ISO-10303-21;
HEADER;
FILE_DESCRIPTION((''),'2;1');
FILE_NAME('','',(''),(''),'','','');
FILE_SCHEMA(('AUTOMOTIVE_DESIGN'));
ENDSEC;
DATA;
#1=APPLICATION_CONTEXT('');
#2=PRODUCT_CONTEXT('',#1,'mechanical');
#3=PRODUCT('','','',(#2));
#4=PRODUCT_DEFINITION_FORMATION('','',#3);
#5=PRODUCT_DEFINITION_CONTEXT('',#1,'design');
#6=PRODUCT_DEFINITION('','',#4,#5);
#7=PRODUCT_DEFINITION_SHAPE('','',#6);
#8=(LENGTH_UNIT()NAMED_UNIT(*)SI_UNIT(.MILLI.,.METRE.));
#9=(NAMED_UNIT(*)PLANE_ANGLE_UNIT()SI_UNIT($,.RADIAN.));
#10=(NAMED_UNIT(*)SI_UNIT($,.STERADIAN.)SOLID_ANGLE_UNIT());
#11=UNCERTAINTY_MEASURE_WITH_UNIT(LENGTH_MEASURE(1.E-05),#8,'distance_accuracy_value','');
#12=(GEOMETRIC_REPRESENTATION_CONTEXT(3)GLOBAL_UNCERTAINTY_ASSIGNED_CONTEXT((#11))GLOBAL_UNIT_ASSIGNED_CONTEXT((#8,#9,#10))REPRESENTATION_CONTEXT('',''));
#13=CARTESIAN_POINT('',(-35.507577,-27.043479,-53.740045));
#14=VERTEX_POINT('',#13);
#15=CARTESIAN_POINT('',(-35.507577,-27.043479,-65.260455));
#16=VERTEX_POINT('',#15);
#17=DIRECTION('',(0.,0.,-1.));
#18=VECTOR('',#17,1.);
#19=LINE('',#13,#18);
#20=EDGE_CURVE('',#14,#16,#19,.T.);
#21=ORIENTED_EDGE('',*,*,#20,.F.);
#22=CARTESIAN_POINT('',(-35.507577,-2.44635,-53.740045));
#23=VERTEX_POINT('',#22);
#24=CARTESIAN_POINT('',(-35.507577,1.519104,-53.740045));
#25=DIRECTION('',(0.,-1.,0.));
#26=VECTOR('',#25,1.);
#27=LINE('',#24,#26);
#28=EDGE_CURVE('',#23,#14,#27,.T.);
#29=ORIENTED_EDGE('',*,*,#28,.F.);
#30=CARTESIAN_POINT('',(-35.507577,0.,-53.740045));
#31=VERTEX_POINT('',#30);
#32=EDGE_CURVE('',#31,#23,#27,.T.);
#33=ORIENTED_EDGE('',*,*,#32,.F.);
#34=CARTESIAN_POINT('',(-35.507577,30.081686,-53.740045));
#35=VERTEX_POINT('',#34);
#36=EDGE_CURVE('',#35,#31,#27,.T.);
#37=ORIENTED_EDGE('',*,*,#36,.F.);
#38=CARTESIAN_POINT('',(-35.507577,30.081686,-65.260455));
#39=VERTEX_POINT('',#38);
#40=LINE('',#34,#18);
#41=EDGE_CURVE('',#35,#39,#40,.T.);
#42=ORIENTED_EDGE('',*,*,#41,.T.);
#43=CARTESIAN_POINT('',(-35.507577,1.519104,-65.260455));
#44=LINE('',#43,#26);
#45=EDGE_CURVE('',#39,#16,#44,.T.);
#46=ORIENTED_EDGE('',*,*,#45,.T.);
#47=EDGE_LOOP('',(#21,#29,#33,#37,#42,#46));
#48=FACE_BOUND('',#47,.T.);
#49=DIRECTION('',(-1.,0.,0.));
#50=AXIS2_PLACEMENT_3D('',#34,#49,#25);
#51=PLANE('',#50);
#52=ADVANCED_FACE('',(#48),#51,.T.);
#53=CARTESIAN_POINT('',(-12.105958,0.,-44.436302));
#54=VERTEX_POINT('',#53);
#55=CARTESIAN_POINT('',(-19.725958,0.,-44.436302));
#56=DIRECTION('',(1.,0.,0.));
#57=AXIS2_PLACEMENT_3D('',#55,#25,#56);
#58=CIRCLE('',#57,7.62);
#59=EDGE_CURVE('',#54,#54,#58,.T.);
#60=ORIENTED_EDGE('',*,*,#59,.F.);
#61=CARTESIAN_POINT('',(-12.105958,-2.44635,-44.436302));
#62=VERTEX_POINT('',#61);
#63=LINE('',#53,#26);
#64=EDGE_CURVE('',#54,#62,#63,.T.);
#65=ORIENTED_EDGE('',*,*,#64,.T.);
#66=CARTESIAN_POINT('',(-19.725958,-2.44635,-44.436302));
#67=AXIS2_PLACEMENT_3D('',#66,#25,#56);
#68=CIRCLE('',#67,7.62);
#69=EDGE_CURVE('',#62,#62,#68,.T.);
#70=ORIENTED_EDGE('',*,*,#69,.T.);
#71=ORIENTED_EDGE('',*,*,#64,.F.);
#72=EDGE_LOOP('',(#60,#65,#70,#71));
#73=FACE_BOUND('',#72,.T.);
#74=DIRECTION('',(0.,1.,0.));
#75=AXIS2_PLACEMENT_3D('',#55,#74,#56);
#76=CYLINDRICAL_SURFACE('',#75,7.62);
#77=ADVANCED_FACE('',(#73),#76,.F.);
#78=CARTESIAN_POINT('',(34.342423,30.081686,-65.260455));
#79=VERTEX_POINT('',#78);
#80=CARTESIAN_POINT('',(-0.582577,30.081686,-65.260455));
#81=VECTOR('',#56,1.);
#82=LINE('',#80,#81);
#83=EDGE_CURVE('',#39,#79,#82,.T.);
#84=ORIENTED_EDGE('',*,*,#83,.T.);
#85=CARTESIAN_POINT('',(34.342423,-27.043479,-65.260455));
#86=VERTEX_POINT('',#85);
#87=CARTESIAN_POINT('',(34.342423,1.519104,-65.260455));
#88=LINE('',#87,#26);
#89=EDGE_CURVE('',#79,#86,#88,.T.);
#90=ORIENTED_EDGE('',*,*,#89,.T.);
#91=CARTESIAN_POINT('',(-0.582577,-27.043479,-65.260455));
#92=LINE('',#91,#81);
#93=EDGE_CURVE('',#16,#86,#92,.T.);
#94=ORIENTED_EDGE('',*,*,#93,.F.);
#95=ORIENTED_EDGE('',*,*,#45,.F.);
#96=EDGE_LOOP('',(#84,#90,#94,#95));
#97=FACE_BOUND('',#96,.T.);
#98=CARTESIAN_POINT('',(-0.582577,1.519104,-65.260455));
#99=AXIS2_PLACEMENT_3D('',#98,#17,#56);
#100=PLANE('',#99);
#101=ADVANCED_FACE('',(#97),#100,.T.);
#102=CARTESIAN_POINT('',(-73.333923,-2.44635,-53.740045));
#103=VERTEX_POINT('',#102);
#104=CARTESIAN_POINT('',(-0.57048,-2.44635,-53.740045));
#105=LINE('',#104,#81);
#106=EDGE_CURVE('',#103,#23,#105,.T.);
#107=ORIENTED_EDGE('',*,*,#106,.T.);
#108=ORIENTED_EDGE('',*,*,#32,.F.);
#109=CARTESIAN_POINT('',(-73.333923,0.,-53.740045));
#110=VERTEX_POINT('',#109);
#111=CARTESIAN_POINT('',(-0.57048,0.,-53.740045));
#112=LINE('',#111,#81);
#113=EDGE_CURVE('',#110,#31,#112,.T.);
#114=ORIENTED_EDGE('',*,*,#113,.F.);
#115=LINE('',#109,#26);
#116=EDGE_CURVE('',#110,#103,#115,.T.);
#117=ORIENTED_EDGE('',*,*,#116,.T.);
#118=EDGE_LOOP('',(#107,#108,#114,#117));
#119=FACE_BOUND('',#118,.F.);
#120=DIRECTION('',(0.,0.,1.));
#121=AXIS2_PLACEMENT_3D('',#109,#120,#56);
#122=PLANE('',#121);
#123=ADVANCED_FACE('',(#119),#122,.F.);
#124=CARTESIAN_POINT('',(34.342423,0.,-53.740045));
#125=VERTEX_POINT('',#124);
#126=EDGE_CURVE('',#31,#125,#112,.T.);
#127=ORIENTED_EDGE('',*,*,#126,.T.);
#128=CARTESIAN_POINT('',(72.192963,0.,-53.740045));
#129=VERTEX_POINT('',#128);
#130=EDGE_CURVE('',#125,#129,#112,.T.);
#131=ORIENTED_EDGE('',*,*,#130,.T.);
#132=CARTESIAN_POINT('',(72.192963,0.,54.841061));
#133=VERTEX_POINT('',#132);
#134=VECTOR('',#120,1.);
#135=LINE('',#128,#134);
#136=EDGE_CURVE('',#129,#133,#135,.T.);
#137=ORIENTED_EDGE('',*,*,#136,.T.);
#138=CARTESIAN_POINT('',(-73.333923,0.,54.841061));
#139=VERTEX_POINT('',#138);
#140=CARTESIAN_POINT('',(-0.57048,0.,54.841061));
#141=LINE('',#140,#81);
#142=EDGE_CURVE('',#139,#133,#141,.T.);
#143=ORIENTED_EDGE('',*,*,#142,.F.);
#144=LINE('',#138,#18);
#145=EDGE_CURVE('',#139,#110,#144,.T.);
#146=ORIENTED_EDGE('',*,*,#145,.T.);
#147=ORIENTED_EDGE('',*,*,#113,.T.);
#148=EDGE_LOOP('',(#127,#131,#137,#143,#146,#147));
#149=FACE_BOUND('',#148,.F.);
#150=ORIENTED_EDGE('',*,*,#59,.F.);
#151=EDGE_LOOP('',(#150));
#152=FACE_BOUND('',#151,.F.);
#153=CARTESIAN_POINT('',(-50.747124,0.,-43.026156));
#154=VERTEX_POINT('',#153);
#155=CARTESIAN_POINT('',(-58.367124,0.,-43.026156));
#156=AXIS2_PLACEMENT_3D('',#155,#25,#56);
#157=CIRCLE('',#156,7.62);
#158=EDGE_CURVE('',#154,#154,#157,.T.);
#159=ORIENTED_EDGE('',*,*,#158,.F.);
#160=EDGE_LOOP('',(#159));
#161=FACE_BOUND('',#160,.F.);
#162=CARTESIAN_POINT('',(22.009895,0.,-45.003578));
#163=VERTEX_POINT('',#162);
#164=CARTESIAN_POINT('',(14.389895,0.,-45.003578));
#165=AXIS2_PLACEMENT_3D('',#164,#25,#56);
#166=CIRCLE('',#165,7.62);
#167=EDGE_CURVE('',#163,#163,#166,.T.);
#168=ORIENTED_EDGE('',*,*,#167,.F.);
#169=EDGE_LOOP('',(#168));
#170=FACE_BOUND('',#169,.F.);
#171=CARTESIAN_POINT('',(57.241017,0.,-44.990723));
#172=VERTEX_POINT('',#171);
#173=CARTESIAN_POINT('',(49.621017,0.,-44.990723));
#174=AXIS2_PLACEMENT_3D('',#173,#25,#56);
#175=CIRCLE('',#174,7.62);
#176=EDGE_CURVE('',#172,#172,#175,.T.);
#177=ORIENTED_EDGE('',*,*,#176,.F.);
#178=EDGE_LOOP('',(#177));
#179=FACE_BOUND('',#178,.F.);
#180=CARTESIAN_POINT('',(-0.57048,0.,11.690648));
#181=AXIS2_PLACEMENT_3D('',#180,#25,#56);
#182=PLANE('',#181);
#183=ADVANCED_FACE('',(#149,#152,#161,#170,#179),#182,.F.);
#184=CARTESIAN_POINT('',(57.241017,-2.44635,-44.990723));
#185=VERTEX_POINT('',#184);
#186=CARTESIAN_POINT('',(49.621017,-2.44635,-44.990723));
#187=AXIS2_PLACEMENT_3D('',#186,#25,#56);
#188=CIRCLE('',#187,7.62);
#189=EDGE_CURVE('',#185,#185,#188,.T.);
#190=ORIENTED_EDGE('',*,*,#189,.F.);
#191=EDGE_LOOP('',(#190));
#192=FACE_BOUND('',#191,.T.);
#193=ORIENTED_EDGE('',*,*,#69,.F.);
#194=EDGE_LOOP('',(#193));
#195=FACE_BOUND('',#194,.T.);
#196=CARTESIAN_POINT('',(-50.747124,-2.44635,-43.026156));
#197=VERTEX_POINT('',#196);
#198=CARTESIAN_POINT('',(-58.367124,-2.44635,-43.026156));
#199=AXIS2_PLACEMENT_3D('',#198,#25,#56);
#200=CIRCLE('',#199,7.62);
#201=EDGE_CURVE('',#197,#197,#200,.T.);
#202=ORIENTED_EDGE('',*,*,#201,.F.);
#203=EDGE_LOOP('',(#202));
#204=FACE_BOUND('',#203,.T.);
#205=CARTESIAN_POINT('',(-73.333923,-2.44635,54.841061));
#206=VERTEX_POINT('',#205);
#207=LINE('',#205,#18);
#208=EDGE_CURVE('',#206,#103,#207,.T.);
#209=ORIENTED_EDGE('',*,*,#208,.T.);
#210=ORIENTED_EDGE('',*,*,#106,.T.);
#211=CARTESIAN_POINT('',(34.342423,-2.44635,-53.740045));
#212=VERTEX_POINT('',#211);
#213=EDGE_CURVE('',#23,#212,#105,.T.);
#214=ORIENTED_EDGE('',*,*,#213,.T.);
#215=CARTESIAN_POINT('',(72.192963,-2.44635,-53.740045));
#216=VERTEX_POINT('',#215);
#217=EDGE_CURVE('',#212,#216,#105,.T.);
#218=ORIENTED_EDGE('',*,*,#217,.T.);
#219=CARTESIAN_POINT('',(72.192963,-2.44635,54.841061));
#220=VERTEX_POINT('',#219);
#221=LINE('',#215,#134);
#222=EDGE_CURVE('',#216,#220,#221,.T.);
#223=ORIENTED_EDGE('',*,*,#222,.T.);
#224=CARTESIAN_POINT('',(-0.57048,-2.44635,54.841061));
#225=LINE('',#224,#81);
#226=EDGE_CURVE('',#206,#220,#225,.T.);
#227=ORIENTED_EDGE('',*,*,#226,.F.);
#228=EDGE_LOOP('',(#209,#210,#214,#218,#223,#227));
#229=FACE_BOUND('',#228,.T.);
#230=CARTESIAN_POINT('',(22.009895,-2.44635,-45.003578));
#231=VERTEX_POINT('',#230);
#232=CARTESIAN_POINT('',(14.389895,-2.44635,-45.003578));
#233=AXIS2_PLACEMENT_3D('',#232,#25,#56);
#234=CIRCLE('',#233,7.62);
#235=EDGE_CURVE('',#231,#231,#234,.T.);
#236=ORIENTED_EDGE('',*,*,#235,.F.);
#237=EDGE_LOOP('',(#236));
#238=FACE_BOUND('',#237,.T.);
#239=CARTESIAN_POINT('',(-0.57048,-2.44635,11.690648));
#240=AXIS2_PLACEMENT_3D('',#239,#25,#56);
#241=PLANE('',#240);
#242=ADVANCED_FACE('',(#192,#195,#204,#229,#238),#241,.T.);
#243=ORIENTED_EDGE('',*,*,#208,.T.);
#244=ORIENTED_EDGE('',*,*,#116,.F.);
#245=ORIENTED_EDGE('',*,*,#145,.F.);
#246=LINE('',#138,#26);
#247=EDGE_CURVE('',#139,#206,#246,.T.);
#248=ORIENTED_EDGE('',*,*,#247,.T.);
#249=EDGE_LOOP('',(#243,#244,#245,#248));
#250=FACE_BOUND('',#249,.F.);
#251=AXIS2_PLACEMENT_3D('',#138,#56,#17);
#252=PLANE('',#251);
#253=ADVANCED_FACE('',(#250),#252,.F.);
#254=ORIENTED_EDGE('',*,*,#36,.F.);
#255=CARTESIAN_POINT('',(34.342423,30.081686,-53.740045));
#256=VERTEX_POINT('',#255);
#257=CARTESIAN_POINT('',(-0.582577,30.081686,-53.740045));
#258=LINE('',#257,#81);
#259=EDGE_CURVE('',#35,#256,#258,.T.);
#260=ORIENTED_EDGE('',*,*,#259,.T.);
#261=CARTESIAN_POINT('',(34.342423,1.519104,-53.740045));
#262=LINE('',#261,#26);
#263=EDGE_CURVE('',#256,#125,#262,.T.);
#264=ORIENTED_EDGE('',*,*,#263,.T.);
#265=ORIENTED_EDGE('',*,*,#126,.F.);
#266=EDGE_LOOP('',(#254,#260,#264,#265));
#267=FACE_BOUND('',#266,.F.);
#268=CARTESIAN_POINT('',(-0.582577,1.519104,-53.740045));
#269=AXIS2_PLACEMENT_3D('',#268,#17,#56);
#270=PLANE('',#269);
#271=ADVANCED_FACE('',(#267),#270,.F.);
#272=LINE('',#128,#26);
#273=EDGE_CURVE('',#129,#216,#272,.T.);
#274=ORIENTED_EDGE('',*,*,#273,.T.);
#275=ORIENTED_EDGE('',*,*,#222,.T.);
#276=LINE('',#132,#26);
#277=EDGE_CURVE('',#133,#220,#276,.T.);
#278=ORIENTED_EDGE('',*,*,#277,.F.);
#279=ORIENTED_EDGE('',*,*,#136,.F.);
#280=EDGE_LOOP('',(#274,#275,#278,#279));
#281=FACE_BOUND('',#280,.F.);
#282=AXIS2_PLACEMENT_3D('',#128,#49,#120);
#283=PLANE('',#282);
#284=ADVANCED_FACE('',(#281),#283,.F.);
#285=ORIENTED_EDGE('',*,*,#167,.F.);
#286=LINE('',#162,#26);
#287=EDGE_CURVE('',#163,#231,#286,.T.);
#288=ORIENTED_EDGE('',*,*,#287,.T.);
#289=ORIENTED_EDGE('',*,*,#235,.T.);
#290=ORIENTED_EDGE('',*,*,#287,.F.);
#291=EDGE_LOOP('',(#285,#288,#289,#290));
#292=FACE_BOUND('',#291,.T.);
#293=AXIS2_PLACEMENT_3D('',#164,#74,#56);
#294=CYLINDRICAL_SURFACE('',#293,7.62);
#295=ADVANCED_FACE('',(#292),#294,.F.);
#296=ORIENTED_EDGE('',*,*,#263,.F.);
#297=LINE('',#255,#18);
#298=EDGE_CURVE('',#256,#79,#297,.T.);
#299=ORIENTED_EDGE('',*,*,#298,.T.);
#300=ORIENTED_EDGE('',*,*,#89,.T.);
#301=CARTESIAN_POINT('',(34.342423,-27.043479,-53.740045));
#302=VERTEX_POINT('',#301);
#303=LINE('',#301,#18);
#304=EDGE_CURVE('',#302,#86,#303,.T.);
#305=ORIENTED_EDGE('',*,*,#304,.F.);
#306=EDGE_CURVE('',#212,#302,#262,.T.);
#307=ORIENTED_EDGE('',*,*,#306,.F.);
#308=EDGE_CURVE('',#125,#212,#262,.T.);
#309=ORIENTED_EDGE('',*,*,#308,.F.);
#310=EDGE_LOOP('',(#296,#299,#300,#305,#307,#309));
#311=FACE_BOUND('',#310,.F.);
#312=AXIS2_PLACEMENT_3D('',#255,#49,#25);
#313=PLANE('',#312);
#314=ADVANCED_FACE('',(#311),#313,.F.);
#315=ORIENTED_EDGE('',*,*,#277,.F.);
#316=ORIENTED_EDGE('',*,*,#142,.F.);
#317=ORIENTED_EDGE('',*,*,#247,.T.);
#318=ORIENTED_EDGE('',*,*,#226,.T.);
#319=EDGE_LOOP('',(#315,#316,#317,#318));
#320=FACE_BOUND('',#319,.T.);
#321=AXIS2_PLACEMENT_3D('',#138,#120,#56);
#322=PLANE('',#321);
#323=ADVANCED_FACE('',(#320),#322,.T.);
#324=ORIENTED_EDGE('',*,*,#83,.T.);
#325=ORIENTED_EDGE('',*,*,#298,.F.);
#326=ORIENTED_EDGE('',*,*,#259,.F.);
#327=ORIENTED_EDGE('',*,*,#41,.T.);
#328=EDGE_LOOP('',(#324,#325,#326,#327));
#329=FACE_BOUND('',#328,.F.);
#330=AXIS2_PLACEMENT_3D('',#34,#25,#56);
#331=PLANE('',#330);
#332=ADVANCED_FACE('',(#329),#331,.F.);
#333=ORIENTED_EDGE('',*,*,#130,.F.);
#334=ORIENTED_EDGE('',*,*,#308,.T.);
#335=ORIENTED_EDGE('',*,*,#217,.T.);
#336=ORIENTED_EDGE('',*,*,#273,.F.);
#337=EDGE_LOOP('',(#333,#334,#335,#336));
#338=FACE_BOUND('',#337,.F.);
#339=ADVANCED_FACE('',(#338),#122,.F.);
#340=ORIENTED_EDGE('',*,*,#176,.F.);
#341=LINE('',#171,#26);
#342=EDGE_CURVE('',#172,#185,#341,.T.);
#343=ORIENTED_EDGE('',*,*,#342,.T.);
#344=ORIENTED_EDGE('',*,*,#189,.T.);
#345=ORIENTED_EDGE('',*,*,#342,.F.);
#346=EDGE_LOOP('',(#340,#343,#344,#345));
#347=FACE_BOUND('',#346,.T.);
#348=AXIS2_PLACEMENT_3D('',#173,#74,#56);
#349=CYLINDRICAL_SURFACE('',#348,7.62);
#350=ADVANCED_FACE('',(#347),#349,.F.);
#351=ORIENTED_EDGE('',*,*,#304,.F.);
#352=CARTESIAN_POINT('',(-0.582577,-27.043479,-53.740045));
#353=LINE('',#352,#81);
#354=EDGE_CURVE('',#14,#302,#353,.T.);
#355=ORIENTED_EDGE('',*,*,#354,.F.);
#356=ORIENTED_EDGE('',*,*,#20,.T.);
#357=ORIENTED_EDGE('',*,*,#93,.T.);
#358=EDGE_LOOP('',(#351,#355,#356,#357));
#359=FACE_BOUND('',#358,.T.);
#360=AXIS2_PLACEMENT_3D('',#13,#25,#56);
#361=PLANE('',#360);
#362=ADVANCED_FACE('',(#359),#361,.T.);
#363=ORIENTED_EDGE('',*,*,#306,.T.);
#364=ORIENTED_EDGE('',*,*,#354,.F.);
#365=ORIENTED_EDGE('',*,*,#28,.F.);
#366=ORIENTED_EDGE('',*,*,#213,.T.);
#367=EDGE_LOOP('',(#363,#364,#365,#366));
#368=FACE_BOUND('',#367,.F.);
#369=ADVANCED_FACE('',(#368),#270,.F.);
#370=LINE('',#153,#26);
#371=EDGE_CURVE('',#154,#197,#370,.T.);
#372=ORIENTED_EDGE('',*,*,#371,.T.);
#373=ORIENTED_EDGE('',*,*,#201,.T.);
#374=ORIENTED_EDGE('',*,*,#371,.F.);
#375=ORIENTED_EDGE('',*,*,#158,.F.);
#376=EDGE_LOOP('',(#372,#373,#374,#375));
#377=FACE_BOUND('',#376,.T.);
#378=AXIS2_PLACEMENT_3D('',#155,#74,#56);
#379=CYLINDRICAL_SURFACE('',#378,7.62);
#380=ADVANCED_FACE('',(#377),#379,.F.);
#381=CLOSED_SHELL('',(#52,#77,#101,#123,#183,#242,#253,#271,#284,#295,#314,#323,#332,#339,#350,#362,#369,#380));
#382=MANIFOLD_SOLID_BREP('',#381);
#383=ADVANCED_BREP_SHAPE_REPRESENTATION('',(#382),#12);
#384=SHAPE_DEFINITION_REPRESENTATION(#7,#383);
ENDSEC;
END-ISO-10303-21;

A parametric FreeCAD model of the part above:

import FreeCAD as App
import Part
import Sketcher

V = App.Vector
Q = App.Units.Quantity

doc = App.newDocument("Part")
body = doc.addObject("PartDesign::Body", "Body")

sketch1 = body.newObject("Sketcher::SketchObject", "Sketch")
sketch1.AttachmentSupport = (doc.getObject("XZ_Plane"), [""])
sketch1.MapMode = "FlatFace"
sketch1.addGeometry([
    Part.LineSegment(V(-73, 55, 0), V(-73, -54, 0)),
    Part.LineSegment(V(-73, -54, 0), V(72, -54, 0)),
    Part.LineSegment(V(72, -54, 0), V(72, 55, 0)),
    Part.LineSegment(V(72, 55, 0), V(-73, 55, 0)),
    Part.Circle(V(-20, -44, 0), V(0, 0, 1), 8),
    Part.Circle(V(14, -45, 0), V(0, 0, 1), 8),
    Part.Circle(V(50, -45, 0), V(0, 0, 1), 8),
    Part.Circle(V(-58, -43, 0), V(0, 0, 1), 8),
], False)
sketch1.addConstraint([
    Sketcher.Constraint("Coincident", 0, 2, 1, 1),
    Sketcher.Constraint("Coincident", 1, 2, 2, 1),
    Sketcher.Constraint("Coincident", 2, 2, 3, 1),
    Sketcher.Constraint("Coincident", 3, 2, 0, 1),
    Sketcher.Constraint("Vertical", 0),
    Sketcher.Constraint("Horizontal", 1),
    Sketcher.Constraint("Vertical", 2),
    Sketcher.Constraint("Horizontal", 3),
    Sketcher.Constraint("Equal", 4, 5),
    Sketcher.Constraint("Equal", 5, 6),
    Sketcher.Constraint("Equal", 6, 7),
    Sketcher.Constraint("Diameter", 4, Q("0.6 in")),
    Sketcher.Constraint("DistanceX", 0, 2, 7, 3, 14.966799),
    Sketcher.Constraint("DistanceX", 1, 1, 1, 2, 145.526886),
    Sketcher.Constraint("DistanceY", 0, 2, 0, 1, 108.581106),
    Sketcher.Constraint("DistanceX", 4, 3, -1, 1, 19.725958),
    Sketcher.Constraint("DistanceY", -1, 1, 2, 2, 54.841061),
    Sketcher.Constraint("DistanceX", 5, 3, 6, 3, 35.231122),
    Sketcher.Constraint("DistanceY", 6, 3, 4, 3, 0.554421),
    Sketcher.Constraint("DistanceX", 7, 3, 5, 3, 72.757018),
    Sketcher.Constraint("DistanceY", 5, 3, 7, 3, 1.977421),
    Sketcher.Constraint("DistanceY", 0, 2, 7, 3, 10.713889),
    Sketcher.Constraint("DistanceX", 4, 3, 1, 2, 91.918921),
    Sketcher.Constraint("DistanceY", 4, 3, -1, 1, 44.436302),
])
pad1 = body.newObject("PartDesign::Pad", "Pad")
pad1.Profile = sketch1
pad1.Length = 2.44635

sketch2 = body.newObject("Sketcher::SketchObject", "Sketch001")
sketch2.AttachmentSupport = (doc.getObject("XY_Plane"), [""])
sketch2.MapMode = "FlatFace"
sketch2.AttachmentOffset = App.Placement(V(0, 0, -53.740045), App.Rotation())
sketch2.addGeometry([
    Part.LineSegment(V(-36, -27, 0), V(-36, 30, 0)),
    Part.LineSegment(V(-36, 30, 0), V(34, 30, 0)),
    Part.LineSegment(V(34, 30, 0), V(34, -27, 0)),
    Part.LineSegment(V(34, -27, 0), V(-36, -27, 0)),
], False)
sketch2.addConstraint([
    Sketcher.Constraint("Coincident", 0, 2, 1, 1),
    Sketcher.Constraint("Coincident", 1, 2, 2, 1),
    Sketcher.Constraint("Coincident", 2, 2, 3, 1),
    Sketcher.Constraint("Coincident", 3, 2, 0, 1),
    Sketcher.Constraint("Vertical", 0),
    Sketcher.Constraint("Horizontal", 1),
    Sketcher.Constraint("Vertical", 2),
    Sketcher.Constraint("Horizontal", 3),
    Sketcher.Constraint("DistanceX", 1, 1, 1, 2, Q("2.75 in")),
    Sketcher.Constraint("DistanceY", 0, 1, 0, 2, 57.125164),
    Sketcher.Constraint("DistanceY", 2, 2, -1, 1, 27.043479),
    Sketcher.Constraint("DistanceX", 0, 2, -1, 1, 35.507577),
])
pad2 = body.newObject("PartDesign::Pad", "Pad001")
pad2.Profile = sketch2
pad2.Length = 11.52041
pad2.Reversed = True

doc.recompute()
